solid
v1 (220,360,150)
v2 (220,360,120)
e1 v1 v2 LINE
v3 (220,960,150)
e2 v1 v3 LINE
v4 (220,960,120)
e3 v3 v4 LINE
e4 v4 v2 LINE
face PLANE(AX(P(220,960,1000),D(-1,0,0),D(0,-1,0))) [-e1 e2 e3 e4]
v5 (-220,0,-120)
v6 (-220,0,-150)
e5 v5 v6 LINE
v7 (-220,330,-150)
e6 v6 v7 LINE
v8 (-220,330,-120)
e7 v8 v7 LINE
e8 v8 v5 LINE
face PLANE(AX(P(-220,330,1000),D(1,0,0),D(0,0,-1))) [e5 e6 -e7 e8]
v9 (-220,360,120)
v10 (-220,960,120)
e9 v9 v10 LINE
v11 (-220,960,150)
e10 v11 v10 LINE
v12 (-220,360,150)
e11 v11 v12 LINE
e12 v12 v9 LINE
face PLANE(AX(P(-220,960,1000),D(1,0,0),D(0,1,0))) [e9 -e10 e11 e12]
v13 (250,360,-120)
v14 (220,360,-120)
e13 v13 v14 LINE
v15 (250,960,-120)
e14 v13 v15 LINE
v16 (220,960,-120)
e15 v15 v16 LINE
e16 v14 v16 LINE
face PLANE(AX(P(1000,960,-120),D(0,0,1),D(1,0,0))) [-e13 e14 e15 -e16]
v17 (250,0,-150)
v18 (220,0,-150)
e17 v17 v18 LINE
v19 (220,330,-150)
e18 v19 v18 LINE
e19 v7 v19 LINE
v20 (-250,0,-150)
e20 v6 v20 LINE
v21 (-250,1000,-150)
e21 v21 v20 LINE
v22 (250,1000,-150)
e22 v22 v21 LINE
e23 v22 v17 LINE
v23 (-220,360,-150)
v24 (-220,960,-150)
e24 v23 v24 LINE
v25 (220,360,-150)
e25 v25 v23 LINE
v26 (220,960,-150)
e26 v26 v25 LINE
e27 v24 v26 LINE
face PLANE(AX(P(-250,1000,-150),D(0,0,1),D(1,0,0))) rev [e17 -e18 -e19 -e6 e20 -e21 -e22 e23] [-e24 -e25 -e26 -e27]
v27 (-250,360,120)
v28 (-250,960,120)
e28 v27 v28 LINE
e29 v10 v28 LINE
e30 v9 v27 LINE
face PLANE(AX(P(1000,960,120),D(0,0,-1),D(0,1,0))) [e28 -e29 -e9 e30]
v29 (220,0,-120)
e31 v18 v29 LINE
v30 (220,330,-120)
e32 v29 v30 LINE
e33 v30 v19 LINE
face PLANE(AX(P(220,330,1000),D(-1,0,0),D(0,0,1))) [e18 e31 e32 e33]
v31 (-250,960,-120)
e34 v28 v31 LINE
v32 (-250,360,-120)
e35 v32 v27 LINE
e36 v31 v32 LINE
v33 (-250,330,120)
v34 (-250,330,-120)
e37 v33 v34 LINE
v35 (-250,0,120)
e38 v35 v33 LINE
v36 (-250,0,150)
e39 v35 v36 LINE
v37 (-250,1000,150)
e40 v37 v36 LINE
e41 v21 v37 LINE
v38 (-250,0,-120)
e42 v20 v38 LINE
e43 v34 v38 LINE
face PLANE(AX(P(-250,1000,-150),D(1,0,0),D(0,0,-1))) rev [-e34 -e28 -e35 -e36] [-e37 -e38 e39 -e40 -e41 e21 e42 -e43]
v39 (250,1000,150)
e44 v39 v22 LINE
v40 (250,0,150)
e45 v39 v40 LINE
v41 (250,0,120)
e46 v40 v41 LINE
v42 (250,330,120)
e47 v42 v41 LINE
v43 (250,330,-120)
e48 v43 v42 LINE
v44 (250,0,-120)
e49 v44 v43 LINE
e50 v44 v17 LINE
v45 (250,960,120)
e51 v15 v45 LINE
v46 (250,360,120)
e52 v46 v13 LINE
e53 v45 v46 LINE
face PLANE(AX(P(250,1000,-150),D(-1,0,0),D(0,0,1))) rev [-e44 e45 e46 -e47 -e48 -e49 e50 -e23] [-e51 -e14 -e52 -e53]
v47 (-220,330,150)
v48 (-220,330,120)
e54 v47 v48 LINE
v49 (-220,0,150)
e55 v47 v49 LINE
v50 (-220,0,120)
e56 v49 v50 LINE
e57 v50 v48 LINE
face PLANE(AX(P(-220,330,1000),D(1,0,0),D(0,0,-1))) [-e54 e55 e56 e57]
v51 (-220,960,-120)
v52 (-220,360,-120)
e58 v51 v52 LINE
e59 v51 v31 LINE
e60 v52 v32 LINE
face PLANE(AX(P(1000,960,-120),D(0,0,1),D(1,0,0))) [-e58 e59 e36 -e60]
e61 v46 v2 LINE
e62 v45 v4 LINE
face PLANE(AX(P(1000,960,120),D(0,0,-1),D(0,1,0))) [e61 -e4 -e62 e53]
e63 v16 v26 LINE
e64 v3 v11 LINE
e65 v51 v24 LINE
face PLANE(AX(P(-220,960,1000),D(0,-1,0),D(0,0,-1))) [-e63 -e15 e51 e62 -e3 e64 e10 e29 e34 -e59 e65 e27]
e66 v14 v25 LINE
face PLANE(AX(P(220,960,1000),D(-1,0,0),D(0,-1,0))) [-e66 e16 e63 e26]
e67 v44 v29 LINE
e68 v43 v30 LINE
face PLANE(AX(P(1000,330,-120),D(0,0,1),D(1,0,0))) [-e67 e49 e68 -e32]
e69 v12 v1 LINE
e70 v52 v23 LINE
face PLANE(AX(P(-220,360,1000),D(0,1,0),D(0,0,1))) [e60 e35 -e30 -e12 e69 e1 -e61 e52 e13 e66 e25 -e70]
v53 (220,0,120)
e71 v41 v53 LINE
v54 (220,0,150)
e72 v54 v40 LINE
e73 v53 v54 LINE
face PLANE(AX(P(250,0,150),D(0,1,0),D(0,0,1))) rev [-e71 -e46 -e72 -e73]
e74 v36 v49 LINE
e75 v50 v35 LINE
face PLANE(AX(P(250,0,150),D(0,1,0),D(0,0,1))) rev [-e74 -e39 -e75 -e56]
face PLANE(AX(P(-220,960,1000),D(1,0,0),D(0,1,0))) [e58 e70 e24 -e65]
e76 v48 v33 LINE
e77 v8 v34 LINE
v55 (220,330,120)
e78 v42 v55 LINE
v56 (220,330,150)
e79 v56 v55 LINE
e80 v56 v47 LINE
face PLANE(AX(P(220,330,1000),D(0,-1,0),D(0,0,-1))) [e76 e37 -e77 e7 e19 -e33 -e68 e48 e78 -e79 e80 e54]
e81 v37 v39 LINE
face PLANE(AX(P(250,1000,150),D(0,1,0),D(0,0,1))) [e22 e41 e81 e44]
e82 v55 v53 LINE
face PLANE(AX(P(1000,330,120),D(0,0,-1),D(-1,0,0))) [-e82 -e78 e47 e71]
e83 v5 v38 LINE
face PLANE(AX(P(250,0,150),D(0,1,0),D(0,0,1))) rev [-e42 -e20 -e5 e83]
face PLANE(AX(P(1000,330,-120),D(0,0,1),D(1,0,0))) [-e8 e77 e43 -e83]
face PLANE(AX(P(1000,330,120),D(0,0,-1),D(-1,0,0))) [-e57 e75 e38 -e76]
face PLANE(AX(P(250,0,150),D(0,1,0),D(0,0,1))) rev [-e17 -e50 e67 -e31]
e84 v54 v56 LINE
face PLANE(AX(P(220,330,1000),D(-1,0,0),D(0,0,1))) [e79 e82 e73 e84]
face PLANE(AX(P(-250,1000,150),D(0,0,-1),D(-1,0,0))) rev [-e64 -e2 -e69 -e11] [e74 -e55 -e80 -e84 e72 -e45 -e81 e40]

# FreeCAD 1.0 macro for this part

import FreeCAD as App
import Part
import Sketcher

doc = App.newDocument("Part")
body = doc.addObject("PartDesign::Body", "Body")

# Sketch on XZ plane
sketch1 = doc.addObject("Sketcher::SketchObject", "Sketch")
body.addObject(sketch1)
sketch1.AttachmentSupport = (doc.XZ_Plane, [""])
sketch1.MapMode = "FlatFace"
sketch1.addGeometry([
    Part.LineSegment(App.Vector(-250, -150, 0), App.Vector(-250, 150, 0)),
    Part.LineSegment(App.Vector(-250, 150, 0), App.Vector(250, 150, 0)),
    Part.LineSegment(App.Vector(250, 150, 0), App.Vector(250, -150, 0)),
    Part.LineSegment(App.Vector(250, -150, 0), App.Vector(-250, -150, 0)),
], False)
sketch1.addConstraint([
    Sketcher.Constraint("Coincident", 0, 2, 1, 1),
    Sketcher.Constraint("Coincident", 1, 2, 2, 1),
    Sketcher.Constraint("Coincident", 2, 2, 3, 1),
    Sketcher.Constraint("Coincident", 3, 2, 0, 1),
    Sketcher.Constraint("Vertical", 0),
    Sketcher.Constraint("Horizontal", 1),
    Sketcher.Constraint("Vertical", 2),
    Sketcher.Constraint("Horizontal", 3),
    Sketcher.Constraint("Symmetric", 0, 2, 2, 2, -1, 1),
    Sketcher.Constraint("DistanceX", 1, 1, 1, 2, 500.0),
    Sketcher.Constraint("DistanceY", 0, 1, 0, 2, 300.0),
])
pad1 = doc.addObject("PartDesign::Pad", "Pad")
body.addObject(pad1)
pad1.Profile = sketch1
pad1.Length = 1000
pad1.Reversed = True

# Sketch on XY plane
sketch2 = doc.addObject("Sketcher::SketchObject", "Sketch001")
body.addObject(sketch2)
sketch2.AttachmentSupport = (doc.XY_Plane, [""])
sketch2.MapMode = "FlatFace"
sketch2.addGeometry([
    Part.LineSegment(App.Vector(-220, 960, 0), App.Vector(-220, 360, 0)),
    Part.LineSegment(App.Vector(-220, 360, 0), App.Vector(220, 360, 0)),
    Part.LineSegment(App.Vector(220, 360, 0), App.Vector(220, 960, 0)),
    Part.LineSegment(App.Vector(220, 960, 0), App.Vector(-220, 960, 0)),
], False)
sketch2.addConstraint([
    Sketcher.Constraint("Coincident", 0, 2, 1, 1),
    Sketcher.Constraint("Coincident", 1, 2, 2, 1),
    Sketcher.Constraint("Coincident", 2, 2, 3, 1),
    Sketcher.Constraint("Coincident", 3, 2, 0, 1),
    Sketcher.Constraint("Vertical", 0),
    Sketcher.Constraint("Horizontal", 1),
    Sketcher.Constraint("Vertical", 2),
    Sketcher.Constraint("Horizontal", 3),
    Sketcher.Constraint("DistanceX", 1, 1, 1, 2, 440.0),
    Sketcher.Constraint("DistanceY", 0, 2, 0, 1, 600.0),
    Sketcher.Constraint("DistanceX", 0, 2, -1, 1, 220.0),
    Sketcher.Constraint("DistanceY", -1, 1, 0, 2, 360.0),
])
pocket1 = doc.addObject("PartDesign::Pocket", "Pocket")
body.addObject(pocket1)
pocket1.Profile = sketch2
pocket1.Type = "ThroughAll"
pocket1.Midplane = True

# Sketch on XY plane
sketch3 = doc.addObject("Sketcher::SketchObject", "Sketch002")
body.addObject(sketch3)
sketch3.AttachmentSupport = (doc.XY_Plane, [""])
sketch3.MapMode = "FlatFace"
sketch3.addGeometry([
    Part.LineSegment(App.Vector(-220, 330, 0), App.Vector(-220, 0, 0)),
    Part.LineSegment(App.Vector(-220, 0, 0), App.Vector(220, 0, 0)),
    Part.LineSegment(App.Vector(220, 0, 0), App.Vector(220, 330, 0)),
    Part.LineSegment(App.Vector(220, 330, 0), App.Vector(-220, 330, 0)),
], False)
sketch3.addConstraint([
    Sketcher.Constraint("Coincident", 0, 2, 1, 1),
    Sketcher.Constraint("Coincident", 1, 2, 2, 1),
    Sketcher.Constraint("Coincident", 2, 2, 3, 1),
    Sketcher.Constraint("Coincident", 3, 2, 0, 1),
    Sketcher.Constraint("Vertical", 0),
    Sketcher.Constraint("Horizontal", 1),
    Sketcher.Constraint("Vertical", 2),
    Sketcher.Constraint("Horizontal", 3),
    Sketcher.Constraint("Symmetric", 0, 2, 1, 2, -1, 1),
    Sketcher.Constraint("DistanceX", 1, 1, 1, 2, 440.0),
    Sketcher.Constraint("DistanceY", 0, 2, 0, 1, 330.0),
])
pocket2 = doc.addObject("PartDesign::Pocket", "Pocket001")
body.addObject(pocket2)
pocket2.Profile = sketch3
pocket2.Type = "ThroughAll"
pocket2.Midplane = True

# Sketch on YZ plane
sketch4 = doc.addObject("Sketcher::SketchObject", "Sketch003")
body.addObject(sketch4)
sketch4.AttachmentSupport = (doc.YZ_Plane, [""])
sketch4.MapMode = "FlatFace"
sketch4.addGeometry([
    Part.LineSegment(App.Vector(960, 120, 0), App.Vector(360, 120, 0)),
    Part.LineSegment(App.Vector(360, 120, 0), App.Vector(360, -120, 0)),
    Part.LineSegment(App.Vector(360, -120, 0), App.Vector(960, -120, 0)),
    Part.LineSegment(App.Vector(960, -120, 0), App.Vector(960, 120, 0)),
], False)
sketch4.addConstraint([
    Sketcher.Constraint("Coincident", 0, 2, 1, 1),
    Sketcher.Constraint("Coincident", 1, 2, 2, 1),
    Sketcher.Constraint("Coincident", 2, 2, 3, 1),
    Sketcher.Constraint("Coincident", 3, 2, 0, 1),
    Sketcher.Constraint("Horizontal", 0),
    Sketcher.Constraint("Vertical", 1),
    Sketcher.Constraint("Horizontal", 2),
    Sketcher.Constraint("Vertical", 3),
    Sketcher.Constraint("DistanceX", 0, 2, 0, 1, 600.0),
    Sketcher.Constraint("DistanceY", 1, 2, 1, 1, 240.0),
    Sketcher.Constraint("DistanceX", -1, 1, 0, 2, 360.0),
    Sketcher.Constraint("DistanceY", -1, 1, 0, 2, 120.0),
])
pocket3 = doc.addObject("PartDesign::Pocket", "Pocket002")
body.addObject(pocket3)
pocket3.Profile = sketch4
pocket3.Type = "ThroughAll"
pocket3.Midplane = True

# Sketch on YZ plane
sketch5 = doc.addObject("Sketcher::SketchObject", "Sketch004")
body.addObject(sketch5)
sketch5.AttachmentSupport = (doc.YZ_Plane, [""])
sketch5.MapMode = "FlatFace"
sketch5.addGeometry([
    Part.LineSegment(App.Vector(330, 120, 0), App.Vector(0, 120, 0)),
    Part.LineSegment(App.Vector(0, 120, 0), App.Vector(0, -120, 0)),
    Part.LineSegment(App.Vector(0, -120, 0), App.Vector(330, -120, 0)),
    Part.LineSegment(App.Vector(330, -120, 0), App.Vector(330, 120, 0)),
], False)
sketch5.addConstraint([
    Sketcher.Constraint("Coincident", 0, 2, 1, 1),
    Sketcher.Constraint("Coincident", 1, 2, 2, 1),
    Sketcher.Constraint("Coincident", 2, 2, 3, 1),
    Sketcher.Constraint("Coincident", 3, 2, 0, 1),
    Sketcher.Constraint("Horizontal", 0),
    Sketcher.Constraint("Vertical", 1),
    Sketcher.Constraint("Horizontal", 2),
    Sketcher.Constraint("Vertical", 3),
    Sketcher.Constraint("Symmetric", 0, 2, 1, 2, -1, 1),
    Sketcher.Constraint("DistanceX", 0, 2, 0, 1, 330.0),
    Sketcher.Constraint("DistanceY", 1, 2, 1, 1, 240.0),
])
pocket4 = doc.addObject("PartDesign::Pocket", "Pocket003")
body.addObject(pocket4)
pocket4.Profile = sketch5
pocket4.Type = "ThroughAll"
pocket4.Midplane = True

doc.recompute()
